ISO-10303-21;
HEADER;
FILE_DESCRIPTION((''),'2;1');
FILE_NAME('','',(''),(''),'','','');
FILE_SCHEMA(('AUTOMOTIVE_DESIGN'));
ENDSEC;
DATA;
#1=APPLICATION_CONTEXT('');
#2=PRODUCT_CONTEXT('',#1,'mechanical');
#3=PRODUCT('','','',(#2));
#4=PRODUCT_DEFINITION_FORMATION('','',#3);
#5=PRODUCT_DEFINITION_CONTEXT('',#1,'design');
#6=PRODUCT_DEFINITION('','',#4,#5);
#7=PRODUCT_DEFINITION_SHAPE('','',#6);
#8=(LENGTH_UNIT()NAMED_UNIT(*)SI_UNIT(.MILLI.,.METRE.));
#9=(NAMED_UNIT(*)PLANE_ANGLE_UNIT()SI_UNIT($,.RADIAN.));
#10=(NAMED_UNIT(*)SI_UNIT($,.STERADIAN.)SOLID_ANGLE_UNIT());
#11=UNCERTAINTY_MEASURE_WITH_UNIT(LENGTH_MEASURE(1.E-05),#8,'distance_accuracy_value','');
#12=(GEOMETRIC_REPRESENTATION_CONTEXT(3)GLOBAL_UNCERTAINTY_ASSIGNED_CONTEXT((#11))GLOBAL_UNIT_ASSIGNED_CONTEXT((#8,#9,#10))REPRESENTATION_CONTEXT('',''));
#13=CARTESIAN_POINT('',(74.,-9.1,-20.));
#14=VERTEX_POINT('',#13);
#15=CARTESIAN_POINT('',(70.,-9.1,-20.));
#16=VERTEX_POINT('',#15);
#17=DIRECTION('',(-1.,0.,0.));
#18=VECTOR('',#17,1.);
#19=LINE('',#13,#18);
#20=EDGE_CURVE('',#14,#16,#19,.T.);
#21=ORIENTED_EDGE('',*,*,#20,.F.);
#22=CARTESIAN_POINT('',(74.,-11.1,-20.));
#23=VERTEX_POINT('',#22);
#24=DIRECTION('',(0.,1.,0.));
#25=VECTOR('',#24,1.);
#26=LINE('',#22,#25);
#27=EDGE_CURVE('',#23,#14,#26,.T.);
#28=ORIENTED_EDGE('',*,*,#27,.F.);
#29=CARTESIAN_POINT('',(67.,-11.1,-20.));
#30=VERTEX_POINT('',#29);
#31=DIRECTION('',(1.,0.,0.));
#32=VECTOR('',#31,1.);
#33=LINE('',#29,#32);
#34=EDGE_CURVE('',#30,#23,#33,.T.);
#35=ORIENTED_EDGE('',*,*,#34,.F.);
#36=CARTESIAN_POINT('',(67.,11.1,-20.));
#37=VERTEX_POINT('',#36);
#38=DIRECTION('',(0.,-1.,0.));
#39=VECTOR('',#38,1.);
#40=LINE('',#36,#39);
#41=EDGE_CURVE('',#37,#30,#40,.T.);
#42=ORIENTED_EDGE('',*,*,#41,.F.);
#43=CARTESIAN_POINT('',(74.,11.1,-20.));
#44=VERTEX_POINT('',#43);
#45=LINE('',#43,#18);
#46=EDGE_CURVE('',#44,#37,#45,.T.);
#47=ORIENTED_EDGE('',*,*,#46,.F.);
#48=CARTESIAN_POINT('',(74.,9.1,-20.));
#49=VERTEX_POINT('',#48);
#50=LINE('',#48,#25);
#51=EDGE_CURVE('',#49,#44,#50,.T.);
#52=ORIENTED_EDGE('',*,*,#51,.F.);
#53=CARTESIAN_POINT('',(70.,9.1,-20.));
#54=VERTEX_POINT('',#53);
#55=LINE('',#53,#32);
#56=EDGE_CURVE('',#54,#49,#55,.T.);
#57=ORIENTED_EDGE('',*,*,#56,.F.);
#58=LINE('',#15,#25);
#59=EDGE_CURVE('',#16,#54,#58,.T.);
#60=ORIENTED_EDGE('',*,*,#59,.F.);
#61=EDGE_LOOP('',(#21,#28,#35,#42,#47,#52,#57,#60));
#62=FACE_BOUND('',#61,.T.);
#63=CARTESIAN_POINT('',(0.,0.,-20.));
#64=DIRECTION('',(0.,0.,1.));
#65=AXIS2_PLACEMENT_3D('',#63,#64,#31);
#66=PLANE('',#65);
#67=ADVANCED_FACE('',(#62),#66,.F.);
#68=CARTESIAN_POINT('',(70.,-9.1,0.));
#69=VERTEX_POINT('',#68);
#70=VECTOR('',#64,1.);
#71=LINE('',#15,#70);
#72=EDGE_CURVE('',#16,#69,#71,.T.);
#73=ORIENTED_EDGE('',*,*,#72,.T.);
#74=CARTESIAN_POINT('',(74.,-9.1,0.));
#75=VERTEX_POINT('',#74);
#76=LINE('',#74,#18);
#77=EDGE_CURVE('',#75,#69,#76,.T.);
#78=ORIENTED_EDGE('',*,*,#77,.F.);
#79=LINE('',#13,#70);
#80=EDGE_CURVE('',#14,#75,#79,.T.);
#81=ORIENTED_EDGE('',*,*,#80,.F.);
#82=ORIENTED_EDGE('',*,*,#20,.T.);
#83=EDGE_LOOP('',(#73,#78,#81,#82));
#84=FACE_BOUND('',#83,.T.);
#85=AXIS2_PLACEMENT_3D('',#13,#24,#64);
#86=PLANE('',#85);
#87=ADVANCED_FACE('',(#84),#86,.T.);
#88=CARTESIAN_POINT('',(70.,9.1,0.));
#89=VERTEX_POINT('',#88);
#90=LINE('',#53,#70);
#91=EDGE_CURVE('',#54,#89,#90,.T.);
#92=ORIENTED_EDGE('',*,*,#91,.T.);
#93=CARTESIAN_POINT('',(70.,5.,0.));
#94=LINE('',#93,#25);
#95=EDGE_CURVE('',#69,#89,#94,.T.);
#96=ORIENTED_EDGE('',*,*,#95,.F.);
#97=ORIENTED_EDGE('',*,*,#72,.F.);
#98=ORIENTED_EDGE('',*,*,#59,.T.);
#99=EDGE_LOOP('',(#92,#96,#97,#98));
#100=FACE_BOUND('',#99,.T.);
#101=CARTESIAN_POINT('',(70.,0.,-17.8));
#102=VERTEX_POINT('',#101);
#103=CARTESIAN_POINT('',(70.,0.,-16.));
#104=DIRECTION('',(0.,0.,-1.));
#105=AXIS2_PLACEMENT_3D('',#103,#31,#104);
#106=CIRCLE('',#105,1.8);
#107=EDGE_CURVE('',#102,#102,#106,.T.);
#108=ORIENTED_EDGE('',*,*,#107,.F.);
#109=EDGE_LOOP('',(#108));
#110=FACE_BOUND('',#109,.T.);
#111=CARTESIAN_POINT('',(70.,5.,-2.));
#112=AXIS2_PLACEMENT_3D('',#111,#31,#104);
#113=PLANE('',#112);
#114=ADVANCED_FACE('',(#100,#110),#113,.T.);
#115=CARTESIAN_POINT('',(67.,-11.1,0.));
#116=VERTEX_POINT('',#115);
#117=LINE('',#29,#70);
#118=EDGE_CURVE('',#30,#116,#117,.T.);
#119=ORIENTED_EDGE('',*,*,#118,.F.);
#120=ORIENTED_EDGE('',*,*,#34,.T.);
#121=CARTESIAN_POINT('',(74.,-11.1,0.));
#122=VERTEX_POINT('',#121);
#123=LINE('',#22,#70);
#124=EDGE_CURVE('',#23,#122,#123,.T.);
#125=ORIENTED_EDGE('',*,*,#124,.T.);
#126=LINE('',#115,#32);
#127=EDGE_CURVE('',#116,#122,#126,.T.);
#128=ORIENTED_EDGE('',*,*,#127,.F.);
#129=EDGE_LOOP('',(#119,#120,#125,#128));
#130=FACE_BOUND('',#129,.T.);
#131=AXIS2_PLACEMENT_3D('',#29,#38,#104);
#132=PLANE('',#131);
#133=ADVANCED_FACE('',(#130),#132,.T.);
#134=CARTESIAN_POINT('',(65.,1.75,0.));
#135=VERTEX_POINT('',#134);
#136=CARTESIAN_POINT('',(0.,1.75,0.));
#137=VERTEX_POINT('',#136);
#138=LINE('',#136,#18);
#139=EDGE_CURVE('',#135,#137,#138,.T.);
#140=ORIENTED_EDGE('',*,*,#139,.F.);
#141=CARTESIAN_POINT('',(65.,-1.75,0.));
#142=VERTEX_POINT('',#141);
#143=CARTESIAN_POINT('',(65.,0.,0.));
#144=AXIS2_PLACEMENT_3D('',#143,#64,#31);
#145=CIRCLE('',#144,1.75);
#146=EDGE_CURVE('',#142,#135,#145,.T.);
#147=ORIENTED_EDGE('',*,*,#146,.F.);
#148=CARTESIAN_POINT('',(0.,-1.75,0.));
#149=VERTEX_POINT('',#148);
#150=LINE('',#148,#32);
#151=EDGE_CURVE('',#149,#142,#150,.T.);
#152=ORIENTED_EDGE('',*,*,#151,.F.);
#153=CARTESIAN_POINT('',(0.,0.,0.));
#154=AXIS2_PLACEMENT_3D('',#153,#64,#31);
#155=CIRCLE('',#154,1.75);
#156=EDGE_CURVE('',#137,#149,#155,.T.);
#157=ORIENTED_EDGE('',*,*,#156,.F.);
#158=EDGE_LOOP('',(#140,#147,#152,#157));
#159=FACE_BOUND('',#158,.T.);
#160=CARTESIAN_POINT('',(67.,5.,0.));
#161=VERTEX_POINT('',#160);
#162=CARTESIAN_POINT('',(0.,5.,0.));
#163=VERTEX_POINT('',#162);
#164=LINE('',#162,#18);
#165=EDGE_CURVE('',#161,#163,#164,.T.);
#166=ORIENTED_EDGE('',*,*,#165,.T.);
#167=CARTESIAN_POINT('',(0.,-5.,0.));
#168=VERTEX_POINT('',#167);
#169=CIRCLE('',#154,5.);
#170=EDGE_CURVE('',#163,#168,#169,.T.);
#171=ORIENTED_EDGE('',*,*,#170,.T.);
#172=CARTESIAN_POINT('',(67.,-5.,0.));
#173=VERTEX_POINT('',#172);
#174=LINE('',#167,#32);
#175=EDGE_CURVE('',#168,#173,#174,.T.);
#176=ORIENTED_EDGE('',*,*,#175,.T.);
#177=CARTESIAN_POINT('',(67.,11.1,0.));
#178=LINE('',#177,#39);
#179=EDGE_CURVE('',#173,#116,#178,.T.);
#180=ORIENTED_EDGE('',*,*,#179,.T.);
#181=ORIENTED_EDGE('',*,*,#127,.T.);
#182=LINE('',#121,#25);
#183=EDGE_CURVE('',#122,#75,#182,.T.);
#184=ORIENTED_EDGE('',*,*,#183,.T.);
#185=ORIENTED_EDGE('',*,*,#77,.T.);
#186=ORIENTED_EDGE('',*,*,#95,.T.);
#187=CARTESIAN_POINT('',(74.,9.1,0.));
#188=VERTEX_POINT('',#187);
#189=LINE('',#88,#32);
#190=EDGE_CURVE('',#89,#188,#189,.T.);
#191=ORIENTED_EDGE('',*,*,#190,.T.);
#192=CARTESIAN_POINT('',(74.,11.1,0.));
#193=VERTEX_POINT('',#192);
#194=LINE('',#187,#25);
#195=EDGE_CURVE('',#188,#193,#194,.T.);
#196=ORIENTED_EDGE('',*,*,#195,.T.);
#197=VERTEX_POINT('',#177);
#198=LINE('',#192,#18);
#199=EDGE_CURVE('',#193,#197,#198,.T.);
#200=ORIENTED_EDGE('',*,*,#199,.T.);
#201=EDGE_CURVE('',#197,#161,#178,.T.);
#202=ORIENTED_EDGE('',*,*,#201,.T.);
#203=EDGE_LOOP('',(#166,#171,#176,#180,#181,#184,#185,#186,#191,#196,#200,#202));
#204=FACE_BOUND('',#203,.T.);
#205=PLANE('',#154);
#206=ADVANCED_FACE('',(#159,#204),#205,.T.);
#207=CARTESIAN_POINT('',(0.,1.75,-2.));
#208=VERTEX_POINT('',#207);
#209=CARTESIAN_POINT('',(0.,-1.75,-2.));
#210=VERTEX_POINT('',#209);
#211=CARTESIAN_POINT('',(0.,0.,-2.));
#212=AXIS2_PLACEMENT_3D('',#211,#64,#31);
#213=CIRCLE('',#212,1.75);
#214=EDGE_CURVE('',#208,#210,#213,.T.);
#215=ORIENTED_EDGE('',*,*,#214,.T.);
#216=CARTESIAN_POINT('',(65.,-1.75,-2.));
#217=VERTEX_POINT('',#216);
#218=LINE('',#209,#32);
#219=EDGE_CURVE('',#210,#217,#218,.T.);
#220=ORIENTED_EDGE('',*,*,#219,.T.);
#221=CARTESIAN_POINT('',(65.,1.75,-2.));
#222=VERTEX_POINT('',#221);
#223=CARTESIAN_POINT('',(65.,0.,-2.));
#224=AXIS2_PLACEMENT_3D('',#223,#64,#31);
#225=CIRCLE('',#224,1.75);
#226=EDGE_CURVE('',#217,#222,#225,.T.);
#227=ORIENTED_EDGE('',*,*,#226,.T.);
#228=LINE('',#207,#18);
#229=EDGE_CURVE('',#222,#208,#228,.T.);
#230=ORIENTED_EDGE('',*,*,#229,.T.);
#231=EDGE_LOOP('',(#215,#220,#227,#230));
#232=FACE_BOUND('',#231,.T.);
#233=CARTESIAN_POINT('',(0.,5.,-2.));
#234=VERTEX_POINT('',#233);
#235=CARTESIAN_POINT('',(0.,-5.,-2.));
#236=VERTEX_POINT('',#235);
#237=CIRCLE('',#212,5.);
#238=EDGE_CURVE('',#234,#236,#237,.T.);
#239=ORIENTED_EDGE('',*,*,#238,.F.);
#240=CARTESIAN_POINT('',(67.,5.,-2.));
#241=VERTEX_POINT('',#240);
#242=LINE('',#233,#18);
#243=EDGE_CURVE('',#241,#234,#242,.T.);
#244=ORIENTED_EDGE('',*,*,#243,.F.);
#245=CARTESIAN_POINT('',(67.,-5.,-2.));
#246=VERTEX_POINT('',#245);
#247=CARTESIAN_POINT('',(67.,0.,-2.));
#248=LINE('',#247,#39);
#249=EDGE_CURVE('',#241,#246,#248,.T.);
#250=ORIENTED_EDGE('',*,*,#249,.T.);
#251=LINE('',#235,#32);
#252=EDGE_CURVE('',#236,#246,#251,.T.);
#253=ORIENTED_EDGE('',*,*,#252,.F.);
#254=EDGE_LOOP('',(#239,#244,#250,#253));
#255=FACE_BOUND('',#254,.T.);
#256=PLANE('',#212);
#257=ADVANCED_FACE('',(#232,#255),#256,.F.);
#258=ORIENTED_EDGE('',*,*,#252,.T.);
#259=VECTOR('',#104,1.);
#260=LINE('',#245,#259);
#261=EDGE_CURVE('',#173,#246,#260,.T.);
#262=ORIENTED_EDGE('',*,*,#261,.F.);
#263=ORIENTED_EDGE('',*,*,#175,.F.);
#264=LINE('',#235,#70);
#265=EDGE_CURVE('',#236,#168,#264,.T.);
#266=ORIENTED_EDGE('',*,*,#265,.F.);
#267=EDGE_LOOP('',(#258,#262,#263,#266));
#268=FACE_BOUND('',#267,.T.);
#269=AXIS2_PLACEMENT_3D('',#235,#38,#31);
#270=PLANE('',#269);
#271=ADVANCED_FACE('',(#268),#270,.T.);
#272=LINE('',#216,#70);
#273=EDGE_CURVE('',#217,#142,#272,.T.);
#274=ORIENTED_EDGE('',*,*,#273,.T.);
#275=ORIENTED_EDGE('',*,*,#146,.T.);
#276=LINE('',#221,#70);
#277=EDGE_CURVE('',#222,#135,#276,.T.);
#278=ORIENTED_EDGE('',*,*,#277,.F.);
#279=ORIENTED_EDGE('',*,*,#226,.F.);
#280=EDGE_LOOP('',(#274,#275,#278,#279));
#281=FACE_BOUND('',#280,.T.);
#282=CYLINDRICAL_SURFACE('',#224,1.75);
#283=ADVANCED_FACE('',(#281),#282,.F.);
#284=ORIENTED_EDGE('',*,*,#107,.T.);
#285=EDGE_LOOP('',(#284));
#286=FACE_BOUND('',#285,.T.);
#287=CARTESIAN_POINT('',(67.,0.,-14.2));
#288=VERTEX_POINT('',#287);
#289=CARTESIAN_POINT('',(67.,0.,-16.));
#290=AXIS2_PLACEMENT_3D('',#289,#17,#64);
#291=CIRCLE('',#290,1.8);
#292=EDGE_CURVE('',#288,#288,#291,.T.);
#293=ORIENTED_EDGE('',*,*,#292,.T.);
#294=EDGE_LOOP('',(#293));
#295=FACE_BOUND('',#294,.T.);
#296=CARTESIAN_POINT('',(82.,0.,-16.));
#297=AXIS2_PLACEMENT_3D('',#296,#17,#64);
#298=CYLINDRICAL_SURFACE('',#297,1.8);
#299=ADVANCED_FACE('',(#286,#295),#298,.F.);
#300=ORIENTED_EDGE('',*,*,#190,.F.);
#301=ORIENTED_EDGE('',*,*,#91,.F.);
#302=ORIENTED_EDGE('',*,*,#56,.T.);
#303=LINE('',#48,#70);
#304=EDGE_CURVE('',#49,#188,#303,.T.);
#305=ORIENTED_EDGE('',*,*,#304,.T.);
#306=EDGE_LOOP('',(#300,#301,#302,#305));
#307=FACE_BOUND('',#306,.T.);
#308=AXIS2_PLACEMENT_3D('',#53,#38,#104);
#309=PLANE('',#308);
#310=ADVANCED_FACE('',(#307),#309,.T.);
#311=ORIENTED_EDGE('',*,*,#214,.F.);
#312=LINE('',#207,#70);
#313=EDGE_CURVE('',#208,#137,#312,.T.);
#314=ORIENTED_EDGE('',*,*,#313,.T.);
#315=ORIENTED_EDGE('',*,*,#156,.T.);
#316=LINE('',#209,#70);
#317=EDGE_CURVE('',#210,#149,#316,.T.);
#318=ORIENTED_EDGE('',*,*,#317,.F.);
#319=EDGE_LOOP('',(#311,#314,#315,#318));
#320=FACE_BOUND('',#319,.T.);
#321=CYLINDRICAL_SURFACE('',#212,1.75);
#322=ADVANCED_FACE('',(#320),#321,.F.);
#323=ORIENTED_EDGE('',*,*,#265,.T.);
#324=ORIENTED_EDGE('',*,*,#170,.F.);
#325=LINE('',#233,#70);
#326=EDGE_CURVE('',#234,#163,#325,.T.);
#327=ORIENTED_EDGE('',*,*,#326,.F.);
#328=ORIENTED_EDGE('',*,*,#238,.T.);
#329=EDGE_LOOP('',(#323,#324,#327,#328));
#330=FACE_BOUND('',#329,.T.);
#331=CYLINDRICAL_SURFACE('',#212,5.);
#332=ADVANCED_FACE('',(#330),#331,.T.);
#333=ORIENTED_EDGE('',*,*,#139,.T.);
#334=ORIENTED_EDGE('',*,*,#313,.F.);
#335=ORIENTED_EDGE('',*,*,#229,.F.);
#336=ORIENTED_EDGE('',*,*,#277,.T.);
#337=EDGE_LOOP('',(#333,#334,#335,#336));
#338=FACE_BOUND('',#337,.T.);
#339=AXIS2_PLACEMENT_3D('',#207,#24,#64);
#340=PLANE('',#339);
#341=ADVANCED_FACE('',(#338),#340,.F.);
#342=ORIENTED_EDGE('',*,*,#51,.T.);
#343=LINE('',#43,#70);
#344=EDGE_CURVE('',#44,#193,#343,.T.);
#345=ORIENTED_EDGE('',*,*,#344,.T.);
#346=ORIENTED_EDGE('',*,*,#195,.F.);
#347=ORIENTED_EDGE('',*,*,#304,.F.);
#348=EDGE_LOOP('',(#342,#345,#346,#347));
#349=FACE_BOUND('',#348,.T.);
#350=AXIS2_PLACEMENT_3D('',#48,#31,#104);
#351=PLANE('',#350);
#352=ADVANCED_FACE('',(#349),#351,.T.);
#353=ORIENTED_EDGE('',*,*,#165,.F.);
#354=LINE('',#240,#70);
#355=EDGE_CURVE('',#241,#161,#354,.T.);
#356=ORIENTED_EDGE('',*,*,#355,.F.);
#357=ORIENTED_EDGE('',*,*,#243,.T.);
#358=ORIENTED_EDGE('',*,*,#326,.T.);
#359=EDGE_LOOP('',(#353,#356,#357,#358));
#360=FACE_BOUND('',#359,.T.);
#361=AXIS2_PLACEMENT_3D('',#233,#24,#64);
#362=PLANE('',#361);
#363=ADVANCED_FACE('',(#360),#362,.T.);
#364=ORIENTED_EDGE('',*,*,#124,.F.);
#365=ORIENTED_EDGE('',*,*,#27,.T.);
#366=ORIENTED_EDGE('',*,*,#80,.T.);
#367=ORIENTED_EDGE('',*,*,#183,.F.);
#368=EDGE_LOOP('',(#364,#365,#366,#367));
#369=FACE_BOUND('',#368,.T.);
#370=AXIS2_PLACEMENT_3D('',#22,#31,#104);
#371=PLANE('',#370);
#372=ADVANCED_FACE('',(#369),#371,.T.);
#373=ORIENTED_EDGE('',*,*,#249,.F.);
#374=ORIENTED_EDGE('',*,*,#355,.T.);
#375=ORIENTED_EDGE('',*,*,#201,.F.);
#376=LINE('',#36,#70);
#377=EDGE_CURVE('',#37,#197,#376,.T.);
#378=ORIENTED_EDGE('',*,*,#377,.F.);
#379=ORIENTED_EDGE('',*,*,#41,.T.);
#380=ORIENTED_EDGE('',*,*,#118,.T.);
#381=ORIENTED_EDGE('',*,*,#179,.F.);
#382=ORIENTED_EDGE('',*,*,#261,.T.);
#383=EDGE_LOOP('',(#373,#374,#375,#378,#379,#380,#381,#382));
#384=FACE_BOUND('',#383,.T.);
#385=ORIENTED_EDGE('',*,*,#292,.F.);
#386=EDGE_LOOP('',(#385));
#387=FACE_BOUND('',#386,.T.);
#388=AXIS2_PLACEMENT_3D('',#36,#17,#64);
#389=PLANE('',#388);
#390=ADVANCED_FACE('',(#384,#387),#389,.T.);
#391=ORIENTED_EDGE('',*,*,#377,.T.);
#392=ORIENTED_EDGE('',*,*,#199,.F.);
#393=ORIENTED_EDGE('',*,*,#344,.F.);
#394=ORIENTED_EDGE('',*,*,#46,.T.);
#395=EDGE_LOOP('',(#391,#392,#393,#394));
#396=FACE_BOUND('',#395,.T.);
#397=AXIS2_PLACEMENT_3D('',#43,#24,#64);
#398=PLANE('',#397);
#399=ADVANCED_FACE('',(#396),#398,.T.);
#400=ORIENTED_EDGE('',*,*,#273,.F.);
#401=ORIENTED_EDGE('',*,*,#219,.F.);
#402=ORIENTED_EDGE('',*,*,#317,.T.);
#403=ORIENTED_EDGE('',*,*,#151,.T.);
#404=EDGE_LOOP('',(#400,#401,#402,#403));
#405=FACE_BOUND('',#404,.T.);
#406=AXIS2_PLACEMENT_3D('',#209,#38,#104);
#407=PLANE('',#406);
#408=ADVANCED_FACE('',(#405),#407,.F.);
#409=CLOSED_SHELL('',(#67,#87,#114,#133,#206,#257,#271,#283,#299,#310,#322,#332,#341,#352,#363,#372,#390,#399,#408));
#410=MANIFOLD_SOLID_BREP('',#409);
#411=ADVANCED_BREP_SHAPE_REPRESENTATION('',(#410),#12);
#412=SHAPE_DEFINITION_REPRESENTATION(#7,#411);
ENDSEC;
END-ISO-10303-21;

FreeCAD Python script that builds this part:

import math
import FreeCAD as App
import Part
import Sketcher
Q = App.Units.Quantity


def add_polygon(sketch, points):
    """Adds a closed chain of lines whose ends are joined by coincident constraints."""
    first, n = sketch.GeometryCount, len(points)
    for a, b in zip(points, points[1:] + points[:1]):
        sketch.addGeometry(Part.LineSegment(App.Vector(*a, 0), App.Vector(*b, 0)), False)
    for i in range(n):
        sketch.addConstraint(Sketcher.Constraint("Coincident", first + i, 2, first + (i + 1) % n, 1))

doc = App.newDocument("Part")
body = doc.addObject("PartDesign::Body", "Body")

sketch1 = doc.addObject("Sketcher::SketchObject", "Sketch")
body.addObject(sketch1)
sketch1.AttachmentSupport = (doc.XY_Plane, [""])
sketch1.MapMode = "FlatFace"
sketch1.addGeometry([
    Part.LineSegment(App.Vector(70, 5, 0), App.Vector(0, 5, 0)),
    Part.ArcOfCircle(Part.Circle(App.Vector(0, 0, 0), App.Vector(0, 0, 1), 5), math.radians(90), math.radians(270)),
    Part.LineSegment(App.Vector(0, -5, 0), App.Vector(70, -5, 0)),
    Part.LineSegment(App.Vector(70, -5, 0), App.Vector(70, 5, 0)),
    Part.LineSegment(App.Vector(0, 1.8, 0), App.Vector(65, 1.8, 0)),
    Part.ArcOfCircle(Part.Circle(App.Vector(65, 0, 0), App.Vector(0, 0, 1), 1.8), math.radians(-90), math.radians(90)),
    Part.LineSegment(App.Vector(65, -1.8, 0), App.Vector(0, -1.8, 0)),
    Part.ArcOfCircle(Part.Circle(App.Vector(0, 0, 0), App.Vector(0, 0, 1), 1.8), math.radians(90), math.radians(270)),
], False)
sketch1.addConstraint([
    Sketcher.Constraint("Tangent", 0, 2, 1, 1),
    Sketcher.Constraint("Tangent", 1, 2, 2, 1),
    Sketcher.Constraint("Coincident", 2, 2, 3, 1),
    Sketcher.Constraint("Coincident", 3, 2, 0, 1),
    Sketcher.Constraint("Tangent", 4, 2, 5, 2),
    Sketcher.Constraint("Tangent", 5, 1, 6, 1),
    Sketcher.Constraint("Tangent", 6, 2, 7, 2),
    Sketcher.Constraint("Tangent", 7, 1, 4, 1),
    Sketcher.Constraint("Horizontal", 0),
    Sketcher.Constraint("Horizontal", 2),
    Sketcher.Constraint("Vertical", 3),
    Sketcher.Constraint("Horizontal", 4),
    Sketcher.Constraint("Horizontal", 6),
    Sketcher.Constraint("Coincident", 1, 3, -1, 1),
    Sketcher.Constraint("Coincident", 7, 3, -1, 1),
    Sketcher.Constraint("Radius", 1, Q("5 mm")),
    Sketcher.Constraint("DistanceX", 0, 2, 0, 1, Q("70 mm")),
    Sketcher.Constraint("DistanceX", 4, 1, 4, 2, Q("65 mm")),
    Sketcher.Constraint("Radius", 5, Q("1.75 mm")),
])
pad1 = doc.addObject("PartDesign::Pad", "Pad")
body.addObject(pad1)
pad1.Profile = sketch1
pad1.Length = 2
pad1.Reversed = True

sketch2 = doc.addObject("Sketcher::SketchObject", "Sketch001")
body.addObject(sketch2)
sketch2.AttachmentSupport = (doc.XY_Plane, [""])
sketch2.MapMode = "FlatFace"
add_polygon(sketch2, [(74, 11.1), (67, 11.1), (67, -11.1), (74, -11.1), (74, -9.1), (70, -9.1), (70, 9.1), (74, 9.1)])
sketch2.addConstraint([
    Sketcher.Constraint("Horizontal", 0),
    Sketcher.Constraint("Vertical", 1),
    Sketcher.Constraint("Horizontal", 2),
    Sketcher.Constraint("Vertical", 3),
    Sketcher.Constraint("Horizontal", 4),
    Sketcher.Constraint("Vertical", 5),
    Sketcher.Constraint("Horizontal", 6),
    Sketcher.Constraint("Vertical", 7),
    Sketcher.Constraint("Symmetric", 3, 2, 6, 2, -1),
    Sketcher.Constraint("Equal", 3, 7),
    Sketcher.Constraint("DistanceX", 0, 2, 0, 1, Q("7 mm")),
    Sketcher.Constraint("DistanceX", 4, 2, 4, 1, Q("4 mm")),
    Sketcher.Constraint("DistanceY", 3, 1, 3, 2, Q("2 mm")),
    Sketcher.Constraint("DistanceY", 1, 2, 1, 1, Q("22.2 mm")),
    Sketcher.Constraint("DistanceX", -1, 1, 0, 2, Q("67 mm")),
])
pad2 = doc.addObject("PartDesign::Pad", "Pad001")
body.addObject(pad2)
pad2.Profile = sketch2
pad2.Length = 20
pad2.Reversed = True

sketch3 = doc.addObject("Sketcher::SketchObject", "Sketch002")
body.addObject(sketch3)
sketch3.AttachmentSupport = (doc.YZ_Plane, [""])
sketch3.MapMode = "FlatFace"
sketch3.AttachmentOffset = App.Placement(App.Vector(0, 0, 67), App.Rotation())
sketch3.addGeometry(Part.Circle(App.Vector(0, -16, 0), App.Vector(0, 0, 1), 1.8), False)
sketch3.addConstraint([
    Sketcher.Constraint("PointOnObject", 0, 3, -2),
    Sketcher.Constraint("Diameter", 0, Q("3.6 mm")),
    Sketcher.Constraint("DistanceY", 0, 3, -1, 1, Q("16 mm")),
])
pocket1 = doc.addObject("PartDesign::Pocket", "Pocket")
body.addObject(pocket1)
pocket1.Profile = sketch3
pocket1.Length = 15
pocket1.Reversed = True

doc.recompute()
